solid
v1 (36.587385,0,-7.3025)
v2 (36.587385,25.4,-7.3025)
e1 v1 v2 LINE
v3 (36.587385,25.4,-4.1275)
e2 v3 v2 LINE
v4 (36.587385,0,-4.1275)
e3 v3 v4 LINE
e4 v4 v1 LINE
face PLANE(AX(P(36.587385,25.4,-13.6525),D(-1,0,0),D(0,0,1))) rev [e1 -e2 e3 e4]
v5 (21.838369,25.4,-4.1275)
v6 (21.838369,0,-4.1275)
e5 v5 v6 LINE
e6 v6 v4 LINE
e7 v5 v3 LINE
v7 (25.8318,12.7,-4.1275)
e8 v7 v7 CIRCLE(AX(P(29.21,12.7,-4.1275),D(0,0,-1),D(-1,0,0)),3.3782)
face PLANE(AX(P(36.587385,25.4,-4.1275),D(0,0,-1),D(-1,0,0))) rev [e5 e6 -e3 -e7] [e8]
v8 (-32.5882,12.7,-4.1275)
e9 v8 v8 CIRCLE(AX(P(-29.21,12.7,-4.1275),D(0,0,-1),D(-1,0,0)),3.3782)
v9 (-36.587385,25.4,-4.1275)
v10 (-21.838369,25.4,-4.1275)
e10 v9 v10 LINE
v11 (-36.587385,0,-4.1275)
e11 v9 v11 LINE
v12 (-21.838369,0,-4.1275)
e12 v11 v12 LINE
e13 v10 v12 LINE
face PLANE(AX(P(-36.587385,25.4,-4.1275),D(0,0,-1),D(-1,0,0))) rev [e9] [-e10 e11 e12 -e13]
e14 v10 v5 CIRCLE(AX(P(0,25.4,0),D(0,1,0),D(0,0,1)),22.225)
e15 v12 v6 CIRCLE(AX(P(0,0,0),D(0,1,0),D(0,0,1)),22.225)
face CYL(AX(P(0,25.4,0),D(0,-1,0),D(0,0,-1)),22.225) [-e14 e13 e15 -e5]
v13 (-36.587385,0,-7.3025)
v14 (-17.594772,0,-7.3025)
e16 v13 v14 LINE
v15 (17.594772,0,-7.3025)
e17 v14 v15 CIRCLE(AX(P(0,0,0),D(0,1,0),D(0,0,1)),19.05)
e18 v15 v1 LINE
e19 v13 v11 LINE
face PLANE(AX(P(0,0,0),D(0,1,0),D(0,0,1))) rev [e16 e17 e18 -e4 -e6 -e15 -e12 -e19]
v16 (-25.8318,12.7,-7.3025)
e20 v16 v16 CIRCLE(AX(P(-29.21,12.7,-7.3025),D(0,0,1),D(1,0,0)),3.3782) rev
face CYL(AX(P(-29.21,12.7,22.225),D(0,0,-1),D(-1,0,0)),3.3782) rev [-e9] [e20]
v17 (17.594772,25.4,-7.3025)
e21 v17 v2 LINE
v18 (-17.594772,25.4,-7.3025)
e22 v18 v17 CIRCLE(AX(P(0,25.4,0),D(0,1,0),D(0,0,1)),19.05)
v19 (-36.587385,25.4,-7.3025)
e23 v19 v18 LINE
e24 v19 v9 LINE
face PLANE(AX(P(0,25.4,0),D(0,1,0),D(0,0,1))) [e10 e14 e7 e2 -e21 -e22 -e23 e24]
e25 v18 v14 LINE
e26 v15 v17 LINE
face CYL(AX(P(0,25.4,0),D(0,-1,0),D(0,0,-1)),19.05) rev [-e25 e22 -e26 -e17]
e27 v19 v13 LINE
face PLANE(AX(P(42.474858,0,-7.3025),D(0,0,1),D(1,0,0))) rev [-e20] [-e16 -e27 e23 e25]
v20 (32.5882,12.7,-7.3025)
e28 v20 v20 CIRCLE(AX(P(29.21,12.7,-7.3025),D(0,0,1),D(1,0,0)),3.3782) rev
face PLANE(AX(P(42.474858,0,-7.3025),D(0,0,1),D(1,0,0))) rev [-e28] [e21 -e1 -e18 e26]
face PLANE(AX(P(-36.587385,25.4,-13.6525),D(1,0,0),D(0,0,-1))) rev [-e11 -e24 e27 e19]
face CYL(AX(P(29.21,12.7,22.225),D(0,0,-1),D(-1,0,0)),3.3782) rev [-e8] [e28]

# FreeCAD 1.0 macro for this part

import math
import FreeCAD as App
import Part
import Sketcher
from FreeCAD import Vector
Q = App.Units.Quantity

doc = App.newDocument("Part")
body = doc.addObject("PartDesign::Body", "Body")

# Sketch on XZ plane
sketch1 = body.newObject("Sketcher::SketchObject", "Sketch")
sketch1.AttachmentSupport = (doc.getObject("XZ_Plane"), [""])
sketch1.MapMode = "FlatFace"
sketch1.addGeometry([
    Part.LineSegment(Vector(37, -14, 0), Vector(18, -14, 0)),  # 0
    Part.ArcOfCircle(Part.Circle(Vector(0, 0, 0), Vector(0, 0, 1), 22), math.radians(-142), math.radians(-38)),  # 1
    Part.LineSegment(Vector(-18, -14, 0), Vector(-37, -14, 0)),  # 2
    Part.LineSegment(Vector(-37, -14, 0), Vector(-37, -4, 0)),  # 3
    Part.LineSegment(Vector(-37, -4, 0), Vector(-22, -4, 0)),  # 4
    Part.ArcOfCircle(Part.Circle(Vector(0, 0, 0), Vector(0, 0, 1), 22), math.radians(-11), math.radians(191)),  # 5
    Part.LineSegment(Vector(22, -4, 0), Vector(37, -4, 0)),  # 6
    Part.LineSegment(Vector(37, -4, 0), Vector(37, -14, 0)),  # 7
    Part.Circle(Vector(0, 0, 0), Vector(0, 0, 1), 19),  # 8
], False)
sketch1.addConstraint([
    Sketcher.Constraint("Coincident", 0, 2, 1, 2),
    Sketcher.Constraint("Coincident", 1, 1, 2, 1),
    Sketcher.Constraint("Coincident", 2, 2, 3, 1),
    Sketcher.Constraint("Coincident", 3, 2, 4, 1),
    Sketcher.Constraint("Coincident", 4, 2, 5, 2),
    Sketcher.Constraint("Coincident", 5, 1, 6, 1),
    Sketcher.Constraint("Coincident", 6, 2, 7, 1),
    Sketcher.Constraint("Coincident", 7, 2, 0, 1),
    Sketcher.Constraint("Horizontal", 0),
    Sketcher.Constraint("Horizontal", 2),
    Sketcher.Constraint("Vertical", 3),
    Sketcher.Constraint("Horizontal", 4),
    Sketcher.Constraint("Horizontal", 6),
    Sketcher.Constraint("Vertical", 7),
    Sketcher.Constraint("Coincident", 1, 3, -1, 1),
    Sketcher.Constraint("Coincident", 5, 3, -1, 1),
    Sketcher.Constraint("Coincident", 8, 3, -1, 1),
    Sketcher.Constraint("Equal", 1, 5),
    Sketcher.Constraint("Symmetric", 3, 2, 6, 2, -2),
    Sketcher.Constraint("Horizontal", 0, 2, 1, 1),
    Sketcher.Constraint("Diameter", 8, Q("1.5 in")),
    Sketcher.Constraint("Radius", 1, Q("0.875 in")),
    Sketcher.Constraint("DistanceX", 0, 2, 0, 1, Q("0.75 in")),
    Sketcher.Constraint("DistanceY", 3, 1, 3, 2, Q("0.375 in")),
    Sketcher.Constraint("DistanceY", 0, 2, -1, 1, Q("0.5375 in")),
])
pad1 = body.newObject("PartDesign::Pad", "Pad")
pad1.Profile = sketch1
pad1.Length = Q("1 in")
pad1.Reversed = True

# Sketch on XY plane
sketch2 = body.newObject("Sketcher::SketchObject", "Sketch001")
sketch2.AttachmentSupport = (doc.getObject("XY_Plane"), [""])
sketch2.MapMode = "FlatFace"
sketch2.AttachmentOffset = App.Placement(Vector(0, 0, -0.5375 * 25.4), App.Rotation())
sketch2.addGeometry([
    Part.Circle(Vector(-29.2, 12.7, 0), Vector(0, 0, 1), 3.4),
    Part.Circle(Vector(29.2, 12.7, 0), Vector(0, 0, 1), 3.4),
], False)
sketch2.addConstraint([
    Sketcher.Constraint("Equal", 0, 1),
    Sketcher.Constraint("Symmetric", 0, 3, 1, 3, -2),
    Sketcher.Constraint("Diameter", 0, Q("0.266 in")),
    Sketcher.Constraint("DistanceY", -1, 1, 0, 3, Q("0.5 in")),
    Sketcher.Constraint("DistanceX", 0, 3, 1, 3, Q("2.3 in")),
])
pocket1 = body.newObject("PartDesign::Pocket", "Pocket")
pocket1.Profile = sketch2
pocket1.Type = "ThroughAll"
pocket1.Reversed = True

# Sketch on XZ plane
sketch3 = body.newObject("Sketcher::SketchObject", "Sketch002")
sketch3.AttachmentSupport = (doc.getObject("XZ_Plane"), [""])
sketch3.MapMode = "FlatFace"
sketch3.AttachmentOffset = App.Placement(Vector(0, 0, -1 * 25.4), App.Rotation())
sketch3.addGeometry([
    Part.LineSegment(Vector(-42, -31, 0), Vector(-42, -7, 0)),
    Part.LineSegment(Vector(-42, -7, 0), Vector(42, -7, 0)),
    Part.LineSegment(Vector(42, -7, 0), Vector(42, -31, 0)),
    Part.LineSegment(Vector(42, -31, 0), Vector(-42, -31, 0)),
], False)
sketch3.addConstraint([
    Sketcher.Constraint("Coincident", 0, 2, 1, 1),
    Sketcher.Constraint("Coincident", 1, 2, 2, 1),
    Sketcher.Constraint("Coincident", 2, 2, 3, 1),
    Sketcher.Constraint("Coincident", 3, 2, 0, 1),
    Sketcher.Constraint("Vertical", 0),
    Sketcher.Constraint("Horizontal", 1),
    Sketcher.Constraint("Vertical", 2),
    Sketcher.Constraint("Horizontal", 3),
    Sketcher.Constraint("DistanceY", 0, 2, -1, 1, Q("0.2875 in")),
    Sketcher.Constraint("DistanceY", 0, 1, 0, 2, 24.140829),
    Sketcher.Constraint("DistanceX", 1, 1, 1, 2, 84.126847),
    Sketcher.Constraint("DistanceX", 0, 2, -1, 1, 41.651988),
])
pocket2 = body.newObject("PartDesign::Pocket", "Pocket001")
pocket2.Profile = sketch3
pocket2.Type = "ThroughAll"
pocket2.Reversed = True

doc.recompute()
